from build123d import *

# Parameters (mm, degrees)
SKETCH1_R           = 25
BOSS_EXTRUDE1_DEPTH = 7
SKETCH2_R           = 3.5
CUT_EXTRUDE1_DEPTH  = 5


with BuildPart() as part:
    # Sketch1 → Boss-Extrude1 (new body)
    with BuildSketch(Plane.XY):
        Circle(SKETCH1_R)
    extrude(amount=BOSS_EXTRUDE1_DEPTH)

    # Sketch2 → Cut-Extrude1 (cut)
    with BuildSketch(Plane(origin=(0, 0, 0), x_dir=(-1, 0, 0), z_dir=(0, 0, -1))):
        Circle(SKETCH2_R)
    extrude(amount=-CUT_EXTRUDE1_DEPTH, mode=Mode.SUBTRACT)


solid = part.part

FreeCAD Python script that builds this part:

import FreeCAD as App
import Part
import Sketcher

V = App.Vector
Q = App.Units.Quantity

doc = App.newDocument("Part")
body = doc.addObject("PartDesign::Body", "Body")

# Sketch on XY plane
sketch1 = body.newObject("Sketcher::SketchObject", "Sketch")
sketch1.AttachmentSupport = (doc.getObject("XY_Plane"), [""])
sketch1.MapMode = "FlatFace"
sketch1.addGeometry(Part.Circle(V(0, 0, 0), V(0, 0, 1), 25), False)
sketch1.addConstraint(Sketcher.Constraint("Coincident", 0, 3, -1, 1))
sketch1.addConstraint(Sketcher.Constraint("Diameter", 0, Q("50 mm")))
pad1 = body.newObject("PartDesign::Pad", "Pad")
pad1.Profile = sketch1
pad1.Length = 7

# Sketch on XY plane
sketch2 = body.newObject("Sketcher::SketchObject", "Sketch001")
sketch2.AttachmentSupport = (doc.getObject("XY_Plane"), [""])
sketch2.MapMode = "FlatFace"
sketch2.addGeometry(Part.Circle(V(0, 0, 0), V(0, 0, 1), 3.5), False)
sketch2.addConstraint(Sketcher.Constraint("Coincident", 0, 3, -1, 1))
sketch2.addConstraint(Sketcher.Constraint("Diameter", 0, Q("7 mm")))
pocket1 = body.newObject("PartDesign::Pocket", "Pocket")
pocket1.Profile = sketch2
pocket1.Length = 5
pocket1.Reversed = True

doc.recompute()
